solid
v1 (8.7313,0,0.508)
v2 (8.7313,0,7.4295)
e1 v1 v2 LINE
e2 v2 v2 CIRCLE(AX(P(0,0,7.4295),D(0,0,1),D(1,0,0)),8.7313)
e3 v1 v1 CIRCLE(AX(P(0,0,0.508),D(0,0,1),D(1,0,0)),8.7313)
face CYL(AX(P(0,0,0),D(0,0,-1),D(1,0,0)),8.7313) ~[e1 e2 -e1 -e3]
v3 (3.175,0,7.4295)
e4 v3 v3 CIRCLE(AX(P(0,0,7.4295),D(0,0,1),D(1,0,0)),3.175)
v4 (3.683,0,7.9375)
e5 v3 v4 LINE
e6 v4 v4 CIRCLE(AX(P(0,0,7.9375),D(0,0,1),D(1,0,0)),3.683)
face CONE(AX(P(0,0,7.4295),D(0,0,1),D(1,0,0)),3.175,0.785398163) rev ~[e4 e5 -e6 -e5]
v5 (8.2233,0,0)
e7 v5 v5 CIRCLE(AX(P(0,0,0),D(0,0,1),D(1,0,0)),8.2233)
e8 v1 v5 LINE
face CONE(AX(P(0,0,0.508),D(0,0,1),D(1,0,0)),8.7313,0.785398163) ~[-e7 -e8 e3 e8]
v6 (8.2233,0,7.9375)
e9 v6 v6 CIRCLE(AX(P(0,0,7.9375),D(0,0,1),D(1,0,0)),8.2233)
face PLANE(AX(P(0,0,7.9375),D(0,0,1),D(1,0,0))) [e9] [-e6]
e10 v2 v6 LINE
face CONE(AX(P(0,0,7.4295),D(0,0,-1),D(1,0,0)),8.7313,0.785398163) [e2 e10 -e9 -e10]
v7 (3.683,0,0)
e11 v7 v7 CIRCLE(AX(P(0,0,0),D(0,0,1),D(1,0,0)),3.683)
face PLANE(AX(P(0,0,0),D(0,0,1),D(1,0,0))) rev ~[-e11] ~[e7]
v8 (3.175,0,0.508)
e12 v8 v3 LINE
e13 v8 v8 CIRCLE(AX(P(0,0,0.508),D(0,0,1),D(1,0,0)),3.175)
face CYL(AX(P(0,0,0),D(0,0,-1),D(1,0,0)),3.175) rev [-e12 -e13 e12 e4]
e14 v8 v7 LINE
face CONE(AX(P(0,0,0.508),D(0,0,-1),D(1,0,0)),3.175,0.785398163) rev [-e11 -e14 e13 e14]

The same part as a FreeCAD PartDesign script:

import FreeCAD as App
import Part
import Sketcher
Q = App.Units.Quantity


def edges_at(feature, points):
    """Names of the edges that pass closest to the given points."""
    edges = feature.Shape.Edges
    near = lambda p: min(range(len(edges)), key=lambda i: edges[i].distToShape(Part.Vertex(*p))[0])
    return sorted({f"Edge{near(p) + 1}" for p in points})

doc = App.newDocument("Part")
body = doc.addObject("PartDesign::Body", "Body")

# Sketch on XY plane
sketch1 = body.newObject("Sketcher::SketchObject", "Sketch")
sketch1.AttachmentSupport = (doc.getObject("XY_Plane"), [""])
sketch1.MapMode = "FlatFace"
sketch1.addGeometry(Part.Circle(App.Vector(0, 0, 0), App.Vector(0, 0, 1), 8.7), False)
sketch1.addGeometry(Part.Circle(App.Vector(0, 0, 0), App.Vector(0, 0, 1), 3.2), False)
sketch1.addConstraint(Sketcher.Constraint("Coincident", 0, 3, -1, 1))
sketch1.addConstraint(Sketcher.Constraint("Coincident", 1, 3, -1, 1))
sketch1.addConstraint(Sketcher.Constraint("Diameter", 1, Q("0.25 in")))
sketch1.addConstraint(Sketcher.Constraint("Diameter", 0, Q("0.6875 in")))
pad1 = body.newObject("PartDesign::Pad", "Pad")
pad1.Profile = sketch1
pad1.Length = Q("0.3125 in")
doc.recompute()

chamfer = body.newObject("PartDesign::Chamfer", "Chamfer")
chamfer.Base = (pad1, edges_at(pad1, [
    (-8.731, 0, 7.938),
    (-3.175, 0, 7.938),
    (-3.175, 0, 0),
    (-8.731, 0, 0),
]))
chamfer.Size = Q("0.02 in")

doc.recompute()
